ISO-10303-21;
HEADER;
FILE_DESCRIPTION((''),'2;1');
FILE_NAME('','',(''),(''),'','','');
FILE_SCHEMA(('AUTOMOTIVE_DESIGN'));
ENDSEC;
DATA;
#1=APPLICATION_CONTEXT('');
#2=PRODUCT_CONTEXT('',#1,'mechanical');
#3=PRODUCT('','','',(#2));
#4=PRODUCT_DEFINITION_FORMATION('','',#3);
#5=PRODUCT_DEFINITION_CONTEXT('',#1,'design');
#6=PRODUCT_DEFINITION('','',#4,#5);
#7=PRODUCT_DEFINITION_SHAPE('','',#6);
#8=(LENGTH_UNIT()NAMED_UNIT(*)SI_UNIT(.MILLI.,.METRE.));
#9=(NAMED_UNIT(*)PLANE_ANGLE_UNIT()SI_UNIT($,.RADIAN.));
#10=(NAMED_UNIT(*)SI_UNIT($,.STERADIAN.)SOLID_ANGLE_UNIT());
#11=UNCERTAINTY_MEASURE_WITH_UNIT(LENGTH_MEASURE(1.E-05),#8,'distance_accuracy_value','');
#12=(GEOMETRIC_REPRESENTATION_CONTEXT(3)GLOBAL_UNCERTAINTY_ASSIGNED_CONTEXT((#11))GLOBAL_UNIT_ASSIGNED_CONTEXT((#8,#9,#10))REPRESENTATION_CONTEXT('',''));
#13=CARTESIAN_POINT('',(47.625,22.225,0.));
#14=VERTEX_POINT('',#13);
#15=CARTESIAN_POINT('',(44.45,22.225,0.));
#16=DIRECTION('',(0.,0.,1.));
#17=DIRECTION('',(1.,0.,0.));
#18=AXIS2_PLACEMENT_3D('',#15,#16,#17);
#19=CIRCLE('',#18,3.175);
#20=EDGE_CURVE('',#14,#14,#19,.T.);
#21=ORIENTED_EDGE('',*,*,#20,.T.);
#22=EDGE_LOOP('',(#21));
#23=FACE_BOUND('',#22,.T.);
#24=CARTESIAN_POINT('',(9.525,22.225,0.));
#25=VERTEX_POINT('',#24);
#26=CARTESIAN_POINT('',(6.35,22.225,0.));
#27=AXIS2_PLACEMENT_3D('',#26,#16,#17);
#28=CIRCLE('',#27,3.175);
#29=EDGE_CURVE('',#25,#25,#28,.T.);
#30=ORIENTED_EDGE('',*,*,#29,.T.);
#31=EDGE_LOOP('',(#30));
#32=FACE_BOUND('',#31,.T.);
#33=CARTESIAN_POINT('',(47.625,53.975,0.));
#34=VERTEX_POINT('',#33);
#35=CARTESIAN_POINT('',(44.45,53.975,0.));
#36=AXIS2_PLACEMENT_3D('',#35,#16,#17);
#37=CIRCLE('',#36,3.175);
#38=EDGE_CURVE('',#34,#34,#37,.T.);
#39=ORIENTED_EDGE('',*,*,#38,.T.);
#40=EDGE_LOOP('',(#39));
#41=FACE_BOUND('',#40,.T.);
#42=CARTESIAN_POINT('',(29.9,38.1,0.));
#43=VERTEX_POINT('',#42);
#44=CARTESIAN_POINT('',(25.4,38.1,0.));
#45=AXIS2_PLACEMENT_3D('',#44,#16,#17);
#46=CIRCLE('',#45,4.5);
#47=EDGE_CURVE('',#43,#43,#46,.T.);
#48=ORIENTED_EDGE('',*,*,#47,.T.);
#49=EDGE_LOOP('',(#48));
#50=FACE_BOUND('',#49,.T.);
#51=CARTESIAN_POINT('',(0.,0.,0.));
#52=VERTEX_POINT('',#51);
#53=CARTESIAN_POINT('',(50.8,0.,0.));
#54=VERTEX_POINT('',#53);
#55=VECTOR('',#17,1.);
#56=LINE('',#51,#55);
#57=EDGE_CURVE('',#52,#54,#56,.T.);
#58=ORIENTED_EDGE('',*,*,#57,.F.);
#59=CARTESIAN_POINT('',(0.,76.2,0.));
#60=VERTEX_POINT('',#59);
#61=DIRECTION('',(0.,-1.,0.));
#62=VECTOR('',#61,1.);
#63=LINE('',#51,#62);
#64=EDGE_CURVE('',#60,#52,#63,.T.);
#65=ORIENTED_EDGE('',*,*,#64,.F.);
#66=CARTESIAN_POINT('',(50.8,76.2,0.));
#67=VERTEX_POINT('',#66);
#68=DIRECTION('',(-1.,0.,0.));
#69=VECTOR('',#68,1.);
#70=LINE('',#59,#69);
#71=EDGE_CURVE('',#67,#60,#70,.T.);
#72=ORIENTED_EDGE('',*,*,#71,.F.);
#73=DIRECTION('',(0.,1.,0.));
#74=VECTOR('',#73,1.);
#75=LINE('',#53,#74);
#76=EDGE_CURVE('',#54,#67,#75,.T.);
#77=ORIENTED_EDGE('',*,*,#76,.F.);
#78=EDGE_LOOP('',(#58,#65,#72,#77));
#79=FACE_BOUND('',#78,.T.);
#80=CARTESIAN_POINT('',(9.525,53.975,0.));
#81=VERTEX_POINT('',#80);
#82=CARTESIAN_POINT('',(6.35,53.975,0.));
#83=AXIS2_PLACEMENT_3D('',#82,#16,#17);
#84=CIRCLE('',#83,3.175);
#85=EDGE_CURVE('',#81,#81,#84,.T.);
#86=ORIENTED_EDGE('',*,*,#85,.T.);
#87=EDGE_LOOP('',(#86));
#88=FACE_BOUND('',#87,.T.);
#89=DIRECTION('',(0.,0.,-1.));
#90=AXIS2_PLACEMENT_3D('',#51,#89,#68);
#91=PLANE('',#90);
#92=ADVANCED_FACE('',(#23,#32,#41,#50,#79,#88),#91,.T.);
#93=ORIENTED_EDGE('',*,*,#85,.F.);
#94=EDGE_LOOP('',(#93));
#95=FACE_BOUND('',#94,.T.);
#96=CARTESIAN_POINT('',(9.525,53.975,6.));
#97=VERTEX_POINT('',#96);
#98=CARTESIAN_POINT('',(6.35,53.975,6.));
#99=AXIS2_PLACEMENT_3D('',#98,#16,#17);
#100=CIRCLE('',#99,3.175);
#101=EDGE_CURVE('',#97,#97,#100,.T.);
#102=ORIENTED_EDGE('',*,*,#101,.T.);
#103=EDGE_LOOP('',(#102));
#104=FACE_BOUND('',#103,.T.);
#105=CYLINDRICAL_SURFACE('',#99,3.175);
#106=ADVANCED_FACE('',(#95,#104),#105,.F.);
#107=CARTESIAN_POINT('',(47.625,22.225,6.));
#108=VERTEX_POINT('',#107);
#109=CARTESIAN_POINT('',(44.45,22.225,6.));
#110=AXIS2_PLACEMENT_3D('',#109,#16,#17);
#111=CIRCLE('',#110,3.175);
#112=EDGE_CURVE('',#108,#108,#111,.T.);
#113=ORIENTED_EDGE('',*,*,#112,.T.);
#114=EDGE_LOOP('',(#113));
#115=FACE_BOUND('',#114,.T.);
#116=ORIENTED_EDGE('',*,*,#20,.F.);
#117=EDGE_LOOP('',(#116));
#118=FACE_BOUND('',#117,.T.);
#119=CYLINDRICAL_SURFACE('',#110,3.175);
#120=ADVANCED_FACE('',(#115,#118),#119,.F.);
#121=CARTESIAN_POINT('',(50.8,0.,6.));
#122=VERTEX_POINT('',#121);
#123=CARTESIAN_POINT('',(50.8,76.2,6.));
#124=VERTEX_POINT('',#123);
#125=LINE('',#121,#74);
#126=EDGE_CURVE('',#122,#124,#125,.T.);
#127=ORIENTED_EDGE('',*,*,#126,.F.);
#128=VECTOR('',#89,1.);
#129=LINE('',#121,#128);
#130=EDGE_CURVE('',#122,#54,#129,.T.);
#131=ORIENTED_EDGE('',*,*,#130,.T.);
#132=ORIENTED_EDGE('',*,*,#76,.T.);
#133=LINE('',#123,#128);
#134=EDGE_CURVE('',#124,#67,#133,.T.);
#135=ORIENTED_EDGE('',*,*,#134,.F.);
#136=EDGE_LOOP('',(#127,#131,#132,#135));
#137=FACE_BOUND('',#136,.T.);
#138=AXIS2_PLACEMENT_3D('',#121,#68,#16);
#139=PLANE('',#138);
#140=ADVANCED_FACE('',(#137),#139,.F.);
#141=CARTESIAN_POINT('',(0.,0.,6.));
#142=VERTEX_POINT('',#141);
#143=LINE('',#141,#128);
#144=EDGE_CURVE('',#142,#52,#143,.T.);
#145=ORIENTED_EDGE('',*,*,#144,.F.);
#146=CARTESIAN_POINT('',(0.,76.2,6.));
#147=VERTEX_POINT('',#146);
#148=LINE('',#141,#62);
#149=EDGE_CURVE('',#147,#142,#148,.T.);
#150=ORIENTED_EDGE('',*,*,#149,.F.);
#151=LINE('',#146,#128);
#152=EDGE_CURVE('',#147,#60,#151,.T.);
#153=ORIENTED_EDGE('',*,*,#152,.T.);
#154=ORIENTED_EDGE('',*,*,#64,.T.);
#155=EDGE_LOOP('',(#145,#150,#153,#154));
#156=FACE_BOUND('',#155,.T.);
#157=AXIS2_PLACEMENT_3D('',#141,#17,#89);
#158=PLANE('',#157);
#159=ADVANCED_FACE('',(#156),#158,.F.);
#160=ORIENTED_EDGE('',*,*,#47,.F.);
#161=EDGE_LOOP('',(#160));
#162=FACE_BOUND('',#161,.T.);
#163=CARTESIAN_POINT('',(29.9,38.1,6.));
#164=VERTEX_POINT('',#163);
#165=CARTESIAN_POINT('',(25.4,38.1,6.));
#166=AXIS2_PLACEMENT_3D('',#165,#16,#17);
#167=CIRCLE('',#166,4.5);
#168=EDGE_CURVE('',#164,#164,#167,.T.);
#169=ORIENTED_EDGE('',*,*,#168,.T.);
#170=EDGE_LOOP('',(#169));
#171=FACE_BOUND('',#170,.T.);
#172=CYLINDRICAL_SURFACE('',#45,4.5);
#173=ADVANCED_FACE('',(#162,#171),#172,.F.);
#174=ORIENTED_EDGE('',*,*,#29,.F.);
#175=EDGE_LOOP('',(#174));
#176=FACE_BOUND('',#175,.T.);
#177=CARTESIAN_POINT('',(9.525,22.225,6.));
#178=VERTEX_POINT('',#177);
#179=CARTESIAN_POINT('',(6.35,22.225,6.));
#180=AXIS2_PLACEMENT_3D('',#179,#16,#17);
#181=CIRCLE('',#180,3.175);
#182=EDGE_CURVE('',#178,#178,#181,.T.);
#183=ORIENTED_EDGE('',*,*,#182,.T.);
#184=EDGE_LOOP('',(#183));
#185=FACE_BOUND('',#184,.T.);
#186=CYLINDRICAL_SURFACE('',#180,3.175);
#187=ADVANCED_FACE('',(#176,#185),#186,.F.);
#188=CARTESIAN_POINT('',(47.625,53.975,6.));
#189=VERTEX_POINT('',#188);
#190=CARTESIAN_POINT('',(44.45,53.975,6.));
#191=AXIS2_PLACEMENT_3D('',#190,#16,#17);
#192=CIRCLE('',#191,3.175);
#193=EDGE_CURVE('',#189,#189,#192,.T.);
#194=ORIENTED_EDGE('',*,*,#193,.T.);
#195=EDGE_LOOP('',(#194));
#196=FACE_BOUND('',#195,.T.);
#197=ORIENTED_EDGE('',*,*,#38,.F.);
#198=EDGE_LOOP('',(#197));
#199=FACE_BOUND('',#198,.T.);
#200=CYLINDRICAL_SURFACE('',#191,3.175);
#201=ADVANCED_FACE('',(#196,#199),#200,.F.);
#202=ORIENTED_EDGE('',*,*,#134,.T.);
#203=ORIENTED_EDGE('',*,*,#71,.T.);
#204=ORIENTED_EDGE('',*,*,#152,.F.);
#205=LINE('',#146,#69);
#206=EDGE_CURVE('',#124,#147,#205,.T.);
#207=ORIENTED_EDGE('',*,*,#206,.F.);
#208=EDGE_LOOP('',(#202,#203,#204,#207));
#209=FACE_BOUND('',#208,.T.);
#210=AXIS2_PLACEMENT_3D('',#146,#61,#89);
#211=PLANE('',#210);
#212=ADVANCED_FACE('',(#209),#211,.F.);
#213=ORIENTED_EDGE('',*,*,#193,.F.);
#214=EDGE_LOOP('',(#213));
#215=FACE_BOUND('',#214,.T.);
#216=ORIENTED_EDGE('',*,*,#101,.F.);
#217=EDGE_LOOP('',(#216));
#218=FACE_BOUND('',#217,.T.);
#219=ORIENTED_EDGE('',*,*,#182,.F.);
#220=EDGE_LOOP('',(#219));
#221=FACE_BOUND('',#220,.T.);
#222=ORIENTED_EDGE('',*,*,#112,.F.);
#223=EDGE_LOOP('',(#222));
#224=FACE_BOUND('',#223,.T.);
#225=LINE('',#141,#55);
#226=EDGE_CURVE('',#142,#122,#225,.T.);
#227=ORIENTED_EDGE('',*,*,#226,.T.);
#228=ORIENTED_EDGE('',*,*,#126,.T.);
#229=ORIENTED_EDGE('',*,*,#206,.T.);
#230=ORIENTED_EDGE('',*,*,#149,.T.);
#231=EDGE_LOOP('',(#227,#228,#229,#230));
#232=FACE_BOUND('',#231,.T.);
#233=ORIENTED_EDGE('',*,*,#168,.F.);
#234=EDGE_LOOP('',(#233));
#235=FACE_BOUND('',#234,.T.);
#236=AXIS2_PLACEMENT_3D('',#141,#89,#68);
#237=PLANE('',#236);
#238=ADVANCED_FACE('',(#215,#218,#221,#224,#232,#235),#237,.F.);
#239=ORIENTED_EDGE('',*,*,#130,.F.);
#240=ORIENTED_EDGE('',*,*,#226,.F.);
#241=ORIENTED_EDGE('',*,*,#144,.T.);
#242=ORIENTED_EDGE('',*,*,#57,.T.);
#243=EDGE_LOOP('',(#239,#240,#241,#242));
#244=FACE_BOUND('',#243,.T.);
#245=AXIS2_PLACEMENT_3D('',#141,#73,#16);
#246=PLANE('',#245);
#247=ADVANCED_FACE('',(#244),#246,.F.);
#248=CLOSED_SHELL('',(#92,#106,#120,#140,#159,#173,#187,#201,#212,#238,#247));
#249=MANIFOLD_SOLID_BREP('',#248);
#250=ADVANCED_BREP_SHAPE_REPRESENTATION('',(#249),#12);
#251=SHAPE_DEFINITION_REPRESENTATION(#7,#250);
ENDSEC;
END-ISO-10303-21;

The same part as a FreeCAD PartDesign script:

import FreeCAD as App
import Part
import Sketcher
from FreeCAD import Vector
Q = App.Units.Quantity

doc = App.newDocument("Part")
body = doc.addObject("PartDesign::Body", "Body")

sketch1 = doc.addObject("Sketcher::SketchObject", "Sketch")
body.addObject(sketch1)
sketch1.AttachmentSupport = (doc.XY_Plane, [""])
sketch1.MapMode = "FlatFace"
sketch1.addGeometry([
    Part.LineSegment(Vector(0, 76, 0), Vector(0, 0, 0)),
    Part.LineSegment(Vector(0, 0, 0), Vector(51, 0, 0)),
    Part.LineSegment(Vector(51, 0, 0), Vector(51, 76, 0)),
    Part.LineSegment(Vector(51, 76, 0), Vector(0, 76, 0)),
], False)
sketch1.addConstraint([
    Sketcher.Constraint("Coincident", 0, 2, 1, 1),
    Sketcher.Constraint("Coincident", 1, 2, 2, 1),
    Sketcher.Constraint("Coincident", 2, 2, 3, 1),
    Sketcher.Constraint("Coincident", 3, 2, 0, 1),
    Sketcher.Constraint("Vertical", 0),
    Sketcher.Constraint("Horizontal", 1),
    Sketcher.Constraint("Vertical", 2),
    Sketcher.Constraint("Horizontal", 3),
    Sketcher.Constraint("Coincident", 0, 2, -1, 1),
    Sketcher.Constraint("DistanceX", 1, 1, 1, 2, Q("50.8 mm")),
    Sketcher.Constraint("DistanceY", 0, 2, 0, 1, Q("76.2 mm")),
])
pad1 = doc.addObject("PartDesign::Pad", "Pad")
body.addObject(pad1)
pad1.Profile = sketch1
pad1.Length = 6

sketch2 = doc.addObject("Sketcher::SketchObject", "Sketch001")
body.addObject(sketch2)
sketch2.AttachmentSupport = (doc.XY_Plane, [""])
sketch2.MapMode = "FlatFace"
sketch2.AttachmentOffset = App.Placement(Vector(0, 0, 6), App.Rotation())
sketch2.addGeometry([
    Part.Circle(Vector(44.5, 54, 0), Vector(0, 0, 1), 3.2),
    Part.Circle(Vector(6.3, 54, 0), Vector(0, 0, 1), 3.2),
    Part.Circle(Vector(6.3, 22.2, 0), Vector(0, 0, 1), 3.2),
    Part.Circle(Vector(44.5, 22.2, 0), Vector(0, 0, 1), 3.2),
], False)
sketch2.addConstraint([
    Sketcher.Constraint("Equal", 0, 1),
    Sketcher.Constraint("Equal", 1, 2),
    Sketcher.Constraint("Equal", 2, 3),
    Sketcher.Constraint("Horizontal", 0, 3, 1, 3),
    Sketcher.Constraint("Horizontal", 2, 3, 3, 3),
    Sketcher.Constraint("Vertical", 1, 3, 2, 3),
    Sketcher.Constraint("Vertical", 0, 3, 3, 3),
    Sketcher.Constraint("Diameter", 0, Q("6.35 mm")),
    Sketcher.Constraint("DistanceX", 1, 3, 0, 3, Q("38.1 mm")),
    Sketcher.Constraint("DistanceX", -1, 1, 0, 3, Q("44.45 mm")),
    Sketcher.Constraint("DistanceY", 2, 3, 1, 3, Q("31.75 mm")),
    Sketcher.Constraint("DistanceY", -1, 1, 0, 3, Q("53.975 mm")),
])
doc.recompute()
hole = doc.addObject("PartDesign::Hole", "Hole")
body.addObject(hole)
hole.Profile = sketch2
hole.ThreadType = "None"
hole.Diameter = 6.35
hole.DepthType = "ThroughAll"

sketch3 = doc.addObject("Sketcher::SketchObject", "Sketch002")
body.addObject(sketch3)
sketch3.AttachmentSupport = (doc.XY_Plane, [""])
sketch3.MapMode = "FlatFace"
sketch3.AttachmentOffset = App.Placement(Vector(0, 0, 6), App.Rotation())
sketch3.addGeometry(Part.Circle(Vector(25.4, 38.1, 0), Vector(0, 0, 1), 4.5), False)
sketch3.addConstraint([
    Sketcher.Constraint("Diameter", 0, Q("9 mm")),
    Sketcher.Constraint("DistanceX", -1, 1, 0, 3, Q("25.4 mm")),
    Sketcher.Constraint("DistanceY", -1, 1, 0, 3, Q("38.1 mm")),
])
pocket1 = doc.addObject("PartDesign::Pocket", "Pocket")
body.addObject(pocket1)
pocket1.Profile = sketch3
pocket1.Type = "ThroughAll"

doc.recompute()
